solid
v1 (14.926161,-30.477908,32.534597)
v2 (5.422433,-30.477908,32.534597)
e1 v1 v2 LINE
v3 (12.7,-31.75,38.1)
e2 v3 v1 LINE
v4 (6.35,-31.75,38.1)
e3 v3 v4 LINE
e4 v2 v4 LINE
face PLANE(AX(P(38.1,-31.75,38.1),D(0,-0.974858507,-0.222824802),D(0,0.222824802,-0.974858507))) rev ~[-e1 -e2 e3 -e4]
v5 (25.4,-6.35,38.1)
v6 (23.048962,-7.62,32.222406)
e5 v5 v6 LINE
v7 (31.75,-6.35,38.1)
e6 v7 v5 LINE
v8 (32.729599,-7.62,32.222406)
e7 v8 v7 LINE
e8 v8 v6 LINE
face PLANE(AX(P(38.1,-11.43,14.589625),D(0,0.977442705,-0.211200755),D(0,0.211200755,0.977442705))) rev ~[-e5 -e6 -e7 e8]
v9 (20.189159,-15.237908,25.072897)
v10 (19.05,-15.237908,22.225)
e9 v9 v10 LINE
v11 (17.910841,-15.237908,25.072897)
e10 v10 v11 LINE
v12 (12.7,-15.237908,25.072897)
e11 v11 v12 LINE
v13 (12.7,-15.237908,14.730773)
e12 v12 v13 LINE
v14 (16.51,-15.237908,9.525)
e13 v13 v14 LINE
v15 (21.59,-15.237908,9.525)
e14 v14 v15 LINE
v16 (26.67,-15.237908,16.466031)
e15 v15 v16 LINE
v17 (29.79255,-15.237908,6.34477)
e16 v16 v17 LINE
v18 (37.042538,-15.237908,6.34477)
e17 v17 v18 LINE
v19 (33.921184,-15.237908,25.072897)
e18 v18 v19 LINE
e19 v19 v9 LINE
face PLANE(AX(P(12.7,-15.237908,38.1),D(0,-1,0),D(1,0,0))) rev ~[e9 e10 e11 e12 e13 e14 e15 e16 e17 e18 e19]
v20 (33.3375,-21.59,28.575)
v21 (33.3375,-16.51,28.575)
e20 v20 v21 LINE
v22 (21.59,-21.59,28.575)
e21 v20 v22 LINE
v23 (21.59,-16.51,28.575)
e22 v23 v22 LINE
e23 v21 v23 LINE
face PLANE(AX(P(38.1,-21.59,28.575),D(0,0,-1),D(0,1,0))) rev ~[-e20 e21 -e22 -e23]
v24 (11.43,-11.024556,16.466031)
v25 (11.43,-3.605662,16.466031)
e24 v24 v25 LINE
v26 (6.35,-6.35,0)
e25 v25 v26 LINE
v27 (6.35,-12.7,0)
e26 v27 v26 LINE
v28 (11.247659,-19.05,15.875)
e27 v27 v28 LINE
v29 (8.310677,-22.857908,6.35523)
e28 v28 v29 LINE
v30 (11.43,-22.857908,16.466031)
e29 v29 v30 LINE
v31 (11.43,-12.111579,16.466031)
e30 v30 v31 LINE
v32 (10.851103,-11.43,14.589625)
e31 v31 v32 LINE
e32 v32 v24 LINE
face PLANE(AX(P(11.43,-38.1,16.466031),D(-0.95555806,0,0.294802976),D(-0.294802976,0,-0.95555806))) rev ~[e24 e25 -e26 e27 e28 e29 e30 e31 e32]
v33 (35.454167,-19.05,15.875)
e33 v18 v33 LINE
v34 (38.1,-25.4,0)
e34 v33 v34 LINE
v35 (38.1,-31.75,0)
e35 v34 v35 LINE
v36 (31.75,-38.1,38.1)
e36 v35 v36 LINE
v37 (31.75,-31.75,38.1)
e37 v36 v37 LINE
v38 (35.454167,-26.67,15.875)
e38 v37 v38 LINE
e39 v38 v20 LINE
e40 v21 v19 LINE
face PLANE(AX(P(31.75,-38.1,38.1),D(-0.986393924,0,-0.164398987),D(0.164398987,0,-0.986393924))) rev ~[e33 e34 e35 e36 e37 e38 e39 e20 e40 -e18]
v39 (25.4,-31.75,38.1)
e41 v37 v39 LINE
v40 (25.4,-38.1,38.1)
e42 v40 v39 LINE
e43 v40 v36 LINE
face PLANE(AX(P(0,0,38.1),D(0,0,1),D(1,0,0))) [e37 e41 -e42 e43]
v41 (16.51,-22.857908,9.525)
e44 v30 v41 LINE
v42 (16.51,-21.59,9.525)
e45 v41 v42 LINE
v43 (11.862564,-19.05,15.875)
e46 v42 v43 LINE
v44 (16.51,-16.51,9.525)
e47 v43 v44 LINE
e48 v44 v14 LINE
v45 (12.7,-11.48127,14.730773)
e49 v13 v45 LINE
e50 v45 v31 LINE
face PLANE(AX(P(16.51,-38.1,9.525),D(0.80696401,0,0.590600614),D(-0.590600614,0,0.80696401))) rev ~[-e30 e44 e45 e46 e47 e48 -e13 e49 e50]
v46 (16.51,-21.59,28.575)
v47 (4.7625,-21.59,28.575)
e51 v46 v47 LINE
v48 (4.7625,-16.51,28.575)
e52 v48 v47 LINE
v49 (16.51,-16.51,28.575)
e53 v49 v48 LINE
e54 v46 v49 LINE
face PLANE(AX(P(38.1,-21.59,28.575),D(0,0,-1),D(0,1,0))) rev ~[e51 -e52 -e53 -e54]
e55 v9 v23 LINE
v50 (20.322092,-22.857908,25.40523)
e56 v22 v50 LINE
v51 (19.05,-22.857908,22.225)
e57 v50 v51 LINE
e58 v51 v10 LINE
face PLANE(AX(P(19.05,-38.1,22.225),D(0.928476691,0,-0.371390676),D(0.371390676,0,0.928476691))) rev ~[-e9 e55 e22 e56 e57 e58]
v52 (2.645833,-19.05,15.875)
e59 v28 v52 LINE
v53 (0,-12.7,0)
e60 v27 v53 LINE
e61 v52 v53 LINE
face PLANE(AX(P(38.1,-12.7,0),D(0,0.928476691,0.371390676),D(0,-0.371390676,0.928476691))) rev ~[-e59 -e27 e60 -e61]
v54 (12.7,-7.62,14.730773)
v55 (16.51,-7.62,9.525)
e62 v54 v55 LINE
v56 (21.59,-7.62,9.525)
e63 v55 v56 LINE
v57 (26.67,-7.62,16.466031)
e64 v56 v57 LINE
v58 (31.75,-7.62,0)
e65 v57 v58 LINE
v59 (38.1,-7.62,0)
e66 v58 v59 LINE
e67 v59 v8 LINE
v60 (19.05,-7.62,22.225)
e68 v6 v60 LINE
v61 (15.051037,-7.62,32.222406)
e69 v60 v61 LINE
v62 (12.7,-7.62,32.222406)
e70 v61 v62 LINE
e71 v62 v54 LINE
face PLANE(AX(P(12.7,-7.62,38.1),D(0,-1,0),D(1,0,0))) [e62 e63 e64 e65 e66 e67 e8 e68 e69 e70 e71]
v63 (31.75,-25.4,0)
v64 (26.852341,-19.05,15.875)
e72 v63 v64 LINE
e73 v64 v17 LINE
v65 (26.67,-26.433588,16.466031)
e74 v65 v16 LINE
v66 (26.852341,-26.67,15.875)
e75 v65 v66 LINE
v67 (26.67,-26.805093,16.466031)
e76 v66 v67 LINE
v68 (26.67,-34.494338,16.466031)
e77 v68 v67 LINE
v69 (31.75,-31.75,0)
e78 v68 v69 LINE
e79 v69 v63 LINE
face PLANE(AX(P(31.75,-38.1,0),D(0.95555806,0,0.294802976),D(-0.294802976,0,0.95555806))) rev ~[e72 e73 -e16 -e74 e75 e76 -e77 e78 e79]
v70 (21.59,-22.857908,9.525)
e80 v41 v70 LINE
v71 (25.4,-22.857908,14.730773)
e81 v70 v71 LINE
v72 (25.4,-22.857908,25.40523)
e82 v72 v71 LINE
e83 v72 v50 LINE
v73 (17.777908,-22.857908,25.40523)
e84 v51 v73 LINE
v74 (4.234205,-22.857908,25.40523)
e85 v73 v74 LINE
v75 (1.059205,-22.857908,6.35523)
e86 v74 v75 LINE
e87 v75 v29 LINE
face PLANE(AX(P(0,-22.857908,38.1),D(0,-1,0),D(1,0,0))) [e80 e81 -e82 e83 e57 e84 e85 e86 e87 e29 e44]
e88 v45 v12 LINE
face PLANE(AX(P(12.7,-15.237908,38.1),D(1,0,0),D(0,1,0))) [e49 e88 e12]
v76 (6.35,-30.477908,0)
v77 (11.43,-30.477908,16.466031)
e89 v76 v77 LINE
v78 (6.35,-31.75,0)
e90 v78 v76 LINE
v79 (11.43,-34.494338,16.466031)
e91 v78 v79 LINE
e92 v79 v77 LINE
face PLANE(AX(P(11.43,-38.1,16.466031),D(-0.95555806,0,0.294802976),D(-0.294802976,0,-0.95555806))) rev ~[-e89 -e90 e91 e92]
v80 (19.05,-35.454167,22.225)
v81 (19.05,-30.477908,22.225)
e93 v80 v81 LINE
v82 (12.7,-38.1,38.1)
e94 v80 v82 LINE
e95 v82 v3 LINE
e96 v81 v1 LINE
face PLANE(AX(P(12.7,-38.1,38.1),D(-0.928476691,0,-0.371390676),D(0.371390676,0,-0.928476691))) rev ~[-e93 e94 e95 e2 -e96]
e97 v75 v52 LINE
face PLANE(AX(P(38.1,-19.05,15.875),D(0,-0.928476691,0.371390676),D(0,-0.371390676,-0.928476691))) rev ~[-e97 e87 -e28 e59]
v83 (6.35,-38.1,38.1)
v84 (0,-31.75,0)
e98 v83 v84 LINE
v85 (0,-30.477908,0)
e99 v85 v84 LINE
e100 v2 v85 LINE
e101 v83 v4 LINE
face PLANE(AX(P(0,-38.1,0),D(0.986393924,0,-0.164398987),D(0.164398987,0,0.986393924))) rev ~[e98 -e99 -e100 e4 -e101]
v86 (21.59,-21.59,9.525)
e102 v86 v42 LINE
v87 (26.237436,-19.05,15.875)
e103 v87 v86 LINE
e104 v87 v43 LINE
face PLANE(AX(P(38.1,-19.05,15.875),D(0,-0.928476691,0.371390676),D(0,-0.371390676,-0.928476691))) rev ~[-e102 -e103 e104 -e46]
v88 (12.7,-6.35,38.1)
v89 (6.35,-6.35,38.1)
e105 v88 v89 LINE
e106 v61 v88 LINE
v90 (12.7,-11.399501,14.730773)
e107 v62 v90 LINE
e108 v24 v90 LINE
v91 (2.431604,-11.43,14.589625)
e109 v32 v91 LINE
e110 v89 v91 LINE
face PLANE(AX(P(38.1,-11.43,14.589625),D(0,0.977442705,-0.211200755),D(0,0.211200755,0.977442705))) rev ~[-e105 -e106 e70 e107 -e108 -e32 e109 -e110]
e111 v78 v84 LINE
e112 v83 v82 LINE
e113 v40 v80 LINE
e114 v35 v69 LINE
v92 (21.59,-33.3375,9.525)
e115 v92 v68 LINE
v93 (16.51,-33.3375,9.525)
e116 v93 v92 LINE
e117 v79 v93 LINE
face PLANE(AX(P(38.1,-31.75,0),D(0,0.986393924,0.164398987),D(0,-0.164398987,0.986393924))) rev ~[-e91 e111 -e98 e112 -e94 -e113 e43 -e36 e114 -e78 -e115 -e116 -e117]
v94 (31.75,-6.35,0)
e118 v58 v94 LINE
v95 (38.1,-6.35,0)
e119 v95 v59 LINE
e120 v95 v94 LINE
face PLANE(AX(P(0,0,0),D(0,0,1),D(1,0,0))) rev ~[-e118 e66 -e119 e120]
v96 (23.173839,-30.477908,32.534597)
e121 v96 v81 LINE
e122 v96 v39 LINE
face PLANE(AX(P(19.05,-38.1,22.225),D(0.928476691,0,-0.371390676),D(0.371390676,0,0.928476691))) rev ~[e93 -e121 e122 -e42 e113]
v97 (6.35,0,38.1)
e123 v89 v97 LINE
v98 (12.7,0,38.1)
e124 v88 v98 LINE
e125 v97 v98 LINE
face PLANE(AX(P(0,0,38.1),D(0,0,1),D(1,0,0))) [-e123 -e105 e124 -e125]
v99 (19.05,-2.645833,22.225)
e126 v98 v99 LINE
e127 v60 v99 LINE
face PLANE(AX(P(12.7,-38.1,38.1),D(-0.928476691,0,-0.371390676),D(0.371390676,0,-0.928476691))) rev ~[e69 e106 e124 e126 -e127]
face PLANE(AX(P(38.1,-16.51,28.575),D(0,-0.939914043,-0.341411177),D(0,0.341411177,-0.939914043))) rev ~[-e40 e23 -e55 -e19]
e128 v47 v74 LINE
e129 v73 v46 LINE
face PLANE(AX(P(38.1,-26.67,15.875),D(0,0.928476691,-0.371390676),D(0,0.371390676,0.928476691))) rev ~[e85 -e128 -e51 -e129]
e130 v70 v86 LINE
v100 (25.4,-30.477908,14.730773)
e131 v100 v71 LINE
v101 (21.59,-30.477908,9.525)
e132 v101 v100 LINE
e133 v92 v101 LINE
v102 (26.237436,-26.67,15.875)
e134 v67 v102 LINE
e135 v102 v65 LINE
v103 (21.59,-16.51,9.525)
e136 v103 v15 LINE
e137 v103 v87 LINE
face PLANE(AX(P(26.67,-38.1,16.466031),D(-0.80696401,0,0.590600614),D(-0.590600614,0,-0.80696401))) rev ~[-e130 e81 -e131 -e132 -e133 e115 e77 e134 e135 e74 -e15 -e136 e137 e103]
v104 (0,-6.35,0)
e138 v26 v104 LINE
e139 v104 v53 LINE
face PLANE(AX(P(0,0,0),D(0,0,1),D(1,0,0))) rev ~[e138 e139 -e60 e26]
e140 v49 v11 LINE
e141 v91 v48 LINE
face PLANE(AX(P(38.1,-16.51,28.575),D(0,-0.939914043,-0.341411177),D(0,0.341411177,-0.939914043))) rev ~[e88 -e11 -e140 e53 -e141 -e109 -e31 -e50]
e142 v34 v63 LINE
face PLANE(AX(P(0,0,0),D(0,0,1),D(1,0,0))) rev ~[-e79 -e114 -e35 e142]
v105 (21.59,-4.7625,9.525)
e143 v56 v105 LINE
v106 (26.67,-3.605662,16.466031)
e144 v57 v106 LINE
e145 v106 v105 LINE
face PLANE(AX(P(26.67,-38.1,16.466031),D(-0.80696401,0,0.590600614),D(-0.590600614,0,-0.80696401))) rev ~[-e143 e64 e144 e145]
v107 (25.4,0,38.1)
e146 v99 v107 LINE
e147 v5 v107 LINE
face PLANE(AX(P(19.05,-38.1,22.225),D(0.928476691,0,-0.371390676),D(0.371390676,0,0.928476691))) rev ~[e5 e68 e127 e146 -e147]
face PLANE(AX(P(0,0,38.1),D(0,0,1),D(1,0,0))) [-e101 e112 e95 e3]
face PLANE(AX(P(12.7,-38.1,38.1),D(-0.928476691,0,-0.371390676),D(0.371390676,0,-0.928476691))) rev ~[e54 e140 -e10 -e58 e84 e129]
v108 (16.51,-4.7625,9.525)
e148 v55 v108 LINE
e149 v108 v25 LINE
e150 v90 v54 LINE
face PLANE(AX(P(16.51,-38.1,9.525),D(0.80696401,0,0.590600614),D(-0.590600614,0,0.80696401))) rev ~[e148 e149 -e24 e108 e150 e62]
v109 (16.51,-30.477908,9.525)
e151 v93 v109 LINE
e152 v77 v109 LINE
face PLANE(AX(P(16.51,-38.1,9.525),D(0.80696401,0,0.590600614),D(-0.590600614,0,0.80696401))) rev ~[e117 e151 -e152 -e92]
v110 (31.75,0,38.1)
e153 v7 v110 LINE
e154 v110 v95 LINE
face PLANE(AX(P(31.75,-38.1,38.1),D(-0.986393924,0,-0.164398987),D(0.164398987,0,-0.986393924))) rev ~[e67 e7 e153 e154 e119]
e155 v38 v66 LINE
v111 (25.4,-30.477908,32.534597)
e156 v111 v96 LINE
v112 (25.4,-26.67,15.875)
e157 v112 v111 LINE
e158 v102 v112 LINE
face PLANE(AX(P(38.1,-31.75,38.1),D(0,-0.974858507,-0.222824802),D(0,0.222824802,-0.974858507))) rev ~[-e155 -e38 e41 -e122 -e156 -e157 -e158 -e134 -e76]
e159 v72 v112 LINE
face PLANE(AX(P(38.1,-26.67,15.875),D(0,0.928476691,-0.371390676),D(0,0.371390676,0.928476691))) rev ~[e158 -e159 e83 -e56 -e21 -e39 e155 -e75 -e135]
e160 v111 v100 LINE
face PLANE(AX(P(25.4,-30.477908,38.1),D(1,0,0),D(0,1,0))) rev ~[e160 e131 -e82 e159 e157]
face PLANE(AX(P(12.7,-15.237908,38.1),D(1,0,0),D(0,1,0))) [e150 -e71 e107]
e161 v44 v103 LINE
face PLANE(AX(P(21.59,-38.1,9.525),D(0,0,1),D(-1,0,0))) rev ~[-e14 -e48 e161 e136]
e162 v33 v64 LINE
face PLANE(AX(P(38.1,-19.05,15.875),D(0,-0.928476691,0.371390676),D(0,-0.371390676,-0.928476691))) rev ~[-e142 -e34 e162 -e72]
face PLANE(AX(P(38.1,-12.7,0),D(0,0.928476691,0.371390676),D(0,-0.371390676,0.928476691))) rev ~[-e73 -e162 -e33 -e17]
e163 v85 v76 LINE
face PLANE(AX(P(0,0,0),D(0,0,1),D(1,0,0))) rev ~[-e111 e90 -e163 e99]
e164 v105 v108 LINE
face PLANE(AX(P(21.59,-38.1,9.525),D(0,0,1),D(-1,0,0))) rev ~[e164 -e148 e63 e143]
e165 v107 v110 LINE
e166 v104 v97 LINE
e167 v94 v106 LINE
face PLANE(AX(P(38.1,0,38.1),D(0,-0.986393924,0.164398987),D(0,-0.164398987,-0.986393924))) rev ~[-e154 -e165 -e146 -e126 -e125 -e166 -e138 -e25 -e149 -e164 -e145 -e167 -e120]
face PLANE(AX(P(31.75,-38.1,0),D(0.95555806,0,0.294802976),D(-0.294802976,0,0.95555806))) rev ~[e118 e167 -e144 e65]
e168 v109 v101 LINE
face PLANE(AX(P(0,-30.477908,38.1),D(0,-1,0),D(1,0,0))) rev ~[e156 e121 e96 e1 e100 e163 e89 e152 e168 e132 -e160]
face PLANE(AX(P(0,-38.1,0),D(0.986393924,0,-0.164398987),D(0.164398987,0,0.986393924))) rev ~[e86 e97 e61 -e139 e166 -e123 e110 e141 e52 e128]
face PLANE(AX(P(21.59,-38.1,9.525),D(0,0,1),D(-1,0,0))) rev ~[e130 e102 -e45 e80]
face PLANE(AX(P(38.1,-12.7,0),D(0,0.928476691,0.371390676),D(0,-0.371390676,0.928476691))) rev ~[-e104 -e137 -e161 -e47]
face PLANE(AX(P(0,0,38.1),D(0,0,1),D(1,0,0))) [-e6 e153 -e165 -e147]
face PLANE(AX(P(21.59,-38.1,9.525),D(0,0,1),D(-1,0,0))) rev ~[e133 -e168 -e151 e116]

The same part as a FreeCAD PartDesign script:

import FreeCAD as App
import Part
import Sketcher
Q = App.Units.Quantity

doc = App.newDocument("Part")
body = doc.addObject("PartDesign::Body", "Body")

# Sketch on XZ plane
sketch1 = body.newObject("Sketcher::SketchObject", "Sketch")
sketch1.AttachmentSupport = (doc.getObject("XZ_Plane"), [""])
sketch1.MapMode = "FlatFace"
sketch1.addGeometry([
    Part.LineSegment(App.Vector(0, 38, 0), App.Vector(0, 0, 0)),
    Part.LineSegment(App.Vector(0, 0, 0), App.Vector(38, 0, 0)),
    Part.LineSegment(App.Vector(38, 0, 0), App.Vector(38, 38, 0)),
    Part.LineSegment(App.Vector(38, 38, 0), App.Vector(0, 38, 0)),
], False)
sketch1.addConstraint([
    Sketcher.Constraint("Coincident", 0, 2, 1, 1),
    Sketcher.Constraint("Coincident", 1, 2, 2, 1),
    Sketcher.Constraint("Coincident", 2, 2, 3, 1),
    Sketcher.Constraint("Coincident", 3, 2, 0, 1),
    Sketcher.Constraint("Vertical", 0),
    Sketcher.Constraint("Horizontal", 1),
    Sketcher.Constraint("Vertical", 2),
    Sketcher.Constraint("Horizontal", 3),
    Sketcher.Constraint("Coincident", 0, 2, -1, 1),
    Sketcher.Constraint("Equal", 3, 0),
    Sketcher.Constraint("DistanceX", 1, 1, 1, 2, Q("1.5 in")),
])
pad1 = body.newObject("PartDesign::Pad", "Pad")
pad1.Profile = sketch1
pad1.Length = Q("1.5 in")

# Sketch on YZ plane
sketch2 = body.newObject("Sketcher::SketchObject", "Sketch001")
sketch2.AttachmentSupport = (doc.getObject("YZ_Plane"), [""])
sketch2.MapMode = "FlatFace"
sketch2.AttachmentOffset = App.Placement(App.Vector(0, 0, 1.5 * 25.4), App.Rotation())
sketch2.addGeometry([
    Part.LineSegment(App.Vector(-11, 15, 0), App.Vector(-6, 38, 0)),  # 0
    Part.LineSegment(App.Vector(-6, 38, 0), App.Vector(-32, 38, 0)),  # 1
    Part.LineSegment(App.Vector(-32, 38, 0), App.Vector(-27, 16, 0)),  # 2
    Part.LineSegment(App.Vector(-27, 16, 0), App.Vector(-22, 29, 0)),  # 3
    Part.LineSegment(App.Vector(-22, 29, 0), App.Vector(-17, 29, 0)),  # 4
    Part.LineSegment(App.Vector(-17, 29, 0), App.Vector(-11, 15, 0)),  # 5
    Part.LineSegment(App.Vector(-32, 0, 0), App.Vector(-38, 38, 0)),  # 6
    Part.LineSegment(App.Vector(-38, 38, 0), App.Vector(-38, 0, 0)),  # 7
    Part.LineSegment(App.Vector(-38, 0, 0), App.Vector(-32, 0, 0)),  # 8
    Part.LineSegment(App.Vector(-25, 0, 0), App.Vector(-13, 0, 0)),  # 9
    Part.LineSegment(App.Vector(-13, 0, 0), App.Vector(-19, 16, 0)),  # 10
    Part.LineSegment(App.Vector(-19, 16, 0), App.Vector(-25, 0, 0)),  # 11
    Part.LineSegment(App.Vector(-6, 0, 0), App.Vector(0, 0, 0)),  # 12
    Part.LineSegment(App.Vector(0, 0, 0), App.Vector(0, 38, 0)),  # 13
    Part.LineSegment(App.Vector(0, 38, 0), App.Vector(-6, 0, 0)),  # 14
], False)
sketch2.addConstraint([
    Sketcher.Constraint("Coincident", 0, 2, 1, 1),
    Sketcher.Constraint("Coincident", 1, 2, 2, 1),
    Sketcher.Constraint("Coincident", 2, 2, 3, 1),
    Sketcher.Constraint("Coincident", 3, 2, 4, 1),
    Sketcher.Constraint("Coincident", 4, 2, 5, 1),
    Sketcher.Constraint("Coincident", 5, 2, 0, 1),
    Sketcher.Constraint("Coincident", 6, 2, 7, 1),
    Sketcher.Constraint("Coincident", 7, 2, 8, 1),
    Sketcher.Constraint("Coincident", 8, 2, 6, 1),
    Sketcher.Constraint("Coincident", 9, 2, 10, 1),
    Sketcher.Constraint("Coincident", 10, 2, 11, 1),
    Sketcher.Constraint("Coincident", 11, 2, 9, 1),
    Sketcher.Constraint("Coincident", 12, 2, 13, 1),
    Sketcher.Constraint("Coincident", 13, 2, 14, 1),
    Sketcher.Constraint("Coincident", 14, 2, 12, 1),
    Sketcher.Constraint("Horizontal", 1),
    Sketcher.Constraint("Horizontal", 4),
    Sketcher.Constraint("Vertical", 7),
    Sketcher.Constraint("Horizontal", 8),
    Sketcher.Constraint("Horizontal", 9),
    Sketcher.Constraint("Horizontal", 12),
    Sketcher.Constraint("Vertical", 13),
    Sketcher.Constraint("Coincident", 12, 2, -1, 1),
    Sketcher.Constraint("PointOnObject", 7, 2, -1),
    Sketcher.Constraint("PointOnObject", 9, 2, -1),
    Sketcher.Constraint("Parallel", 3, 11),
    Sketcher.Constraint("Horizontal", 1, 2, 6, 2),
    Sketcher.Constraint("Horizontal", 2, 2, 10, 2),
    Sketcher.Constraint("Horizontal", 6, 2, 13, 2),
    Sketcher.Constraint("Vertical", 1, 2, 8, 2),
    Sketcher.Constraint("Vertical", 0, 2, 14, 2),
    Sketcher.Constraint("Equal", 8, 12),
    Sketcher.Constraint("Equal", 10, 11),
    Sketcher.Constraint("DistanceX", 1, 2, 1, 1, Q("1 in")),
    Sketcher.Constraint("DistanceX", 4, 1, 4, 2, Q("0.2 in")),
    Sketcher.Constraint("DistanceX", 9, 1, 9, 2, Q("0.5 in")),
    Sketcher.Constraint("DistanceY", 7, 2, 7, 1, Q("1.5 in")),
    Sketcher.Constraint("DistanceX", 11, 2, -1, 1, Q("1 in")),
    Sketcher.Constraint("DistanceX", 7, 2, 9, 2, Q("1 in")),
    Sketcher.Constraint("DistanceX", 1, 2, 2, 2, Q("0.2 in")),
    Sketcher.Constraint("DistanceX", 2, 2, 3, 2, Q("0.2 in")),
    Sketcher.Constraint("DistanceY", 2, 2, 3, 2, Q("0.5 in")),
    Sketcher.Constraint("DistanceX", 4, 2, 5, 2, Q("0.2 in")),
    Sketcher.Constraint("Distance", 5, Q("14.879419 mm")),
])
pocket1 = body.newObject("PartDesign::Pocket", "Pocket")
pocket1.Profile = sketch2
pocket1.Length = Q("1.5 in")

# Sketch on XZ plane
sketch3 = body.newObject("Sketcher::SketchObject", "Sketch002")
sketch3.AttachmentSupport = (doc.getObject("XZ_Plane"), [""])
sketch3.MapMode = "FlatFace"
sketch3.AttachmentOffset = App.Placement(App.Vector(0, 0, 1.5 * 25.4), App.Rotation())
sketch3.addGeometry([
    Part.LineSegment(App.Vector(0, 38, 0), App.Vector(0, 0, 0)),  # 0
    Part.LineSegment(App.Vector(0, 0, 0), App.Vector(6, 38, 0)),  # 1
    Part.LineSegment(App.Vector(6, 38, 0), App.Vector(0, 38, 0)),  # 2
    Part.LineSegment(App.Vector(25, 38, 0), App.Vector(13, 38, 0)),  # 3
    Part.LineSegment(App.Vector(13, 38, 0), App.Vector(19, 22, 0)),  # 4
    Part.LineSegment(App.Vector(19, 22, 0), App.Vector(25, 38, 0)),  # 5
    Part.LineSegment(App.Vector(11, 16, 0), App.Vector(6, 0, 0)),  # 6
    Part.LineSegment(App.Vector(6, 0, 0), App.Vector(32, 0, 0)),  # 7
    Part.LineSegment(App.Vector(32, 0, 0), App.Vector(27, 16, 0)),  # 8
    Part.LineSegment(App.Vector(27, 16, 0), App.Vector(22, 10, 0)),  # 9
    Part.LineSegment(App.Vector(22, 10, 0), App.Vector(17, 10, 0)),  # 10
    Part.LineSegment(App.Vector(17, 10, 0), App.Vector(11, 16, 0)),  # 11
    Part.LineSegment(App.Vector(32, 38, 0), App.Vector(38, 0, 0)),  # 12
    Part.LineSegment(App.Vector(38, 0, 0), App.Vector(38, 38, 0)),  # 13
    Part.LineSegment(App.Vector(38, 38, 0), App.Vector(32, 38, 0)),  # 14
], False)
sketch3.addConstraint([
    Sketcher.Constraint("Coincident", 0, 2, 1, 1),
    Sketcher.Constraint("Coincident", 1, 2, 2, 1),
    Sketcher.Constraint("Coincident", 2, 2, 0, 1),
    Sketcher.Constraint("Coincident", 3, 2, 4, 1),
    Sketcher.Constraint("Coincident", 4, 2, 5, 1),
    Sketcher.Constraint("Coincident", 5, 2, 3, 1),
    Sketcher.Constraint("Coincident", 6, 2, 7, 1),
    Sketcher.Constraint("Coincident", 7, 2, 8, 1),
    Sketcher.Constraint("Coincident", 8, 2, 9, 1),
    Sketcher.Constraint("Coincident", 9, 2, 10, 1),
    Sketcher.Constraint("Coincident", 10, 2, 11, 1),
    Sketcher.Constraint("Coincident", 11, 2, 6, 1),
    Sketcher.Constraint("Coincident", 12, 2, 13, 1),
    Sketcher.Constraint("Coincident", 13, 2, 14, 1),
    Sketcher.Constraint("Coincident", 14, 2, 12, 1),
    Sketcher.Constraint("Vertical", 0),
    Sketcher.Constraint("Horizontal", 2),
    Sketcher.Constraint("Horizontal", 3),
    Sketcher.Constraint("Horizontal", 7),
    Sketcher.Constraint("Horizontal", 10),
    Sketcher.Constraint("Vertical", 13),
    Sketcher.Constraint("Horizontal", 14),
    Sketcher.Constraint("Coincident", 0, 2, -1, 1),
    Sketcher.Constraint("PointOnObject", 6, 2, -1),
    Sketcher.Constraint("PointOnObject", 12, 2, -1),
    Sketcher.Constraint("Horizontal", 2, 2, 3, 2),
    Sketcher.Constraint("Horizontal", 8, 2, 11, 2),
    Sketcher.Constraint("Horizontal", 5, 2, 13, 2),
    Sketcher.Constraint("Vertical", 1, 2, 6, 2),
    Sketcher.Constraint("Vertical", 7, 2, 14, 2),
    Sketcher.Constraint("Equal", 2, 14),
    Sketcher.Constraint("Equal", 4, 5),
    Sketcher.Constraint("Equal", 6, 8),
    Sketcher.Constraint("Equal", 9, 11),
    Sketcher.Constraint("DistanceX", 7, 1, 7, 2, Q("1 in")),
    Sketcher.Constraint("DistanceX", 3, 2, 3, 1, Q("0.5 in")),
    Sketcher.Constraint("DistanceX", 10, 2, 10, 1, Q("0.2 in")),
    Sketcher.Constraint("DistanceY", 0, 2, 0, 1, Q("1.5 in")),
    Sketcher.Constraint("DistanceX", -1, 1, 5, 2, Q("1 in")),
    Sketcher.Constraint("DistanceX", 3, 2, 13, 2, Q("1 in")),
    Sketcher.Constraint("DistanceX", 4, 2, 8, 2, Q("0.3 in")),
    Sketcher.Constraint("DistanceY", 9, 2, 4, 2, Q("0.5 in")),
    Sketcher.Constraint("DistanceY", -1, 1, 4, 2, Q("0.875 in")),
    Sketcher.Constraint("DistanceY", -1, 1, 8, 2, Q("16.466031 mm")),
])
pocket2 = body.newObject("PartDesign::Pocket", "Pocket001")
pocket2.Profile = sketch3
pocket2.Length = Q("1.5 in")

# Sketch on XY plane
sketch4 = body.newObject("Sketcher::SketchObject", "Sketch003")
sketch4.AttachmentSupport = (doc.getObject("XY_Plane"), [""])
sketch4.MapMode = "FlatFace"
sketch4.AttachmentOffset = App.Placement(App.Vector(0, 0, 1.5 * 25.4), App.Rotation())
sketch4.addGeometry([
    Part.LineSegment(App.Vector(13, -8, 0), App.Vector(13, -15, 0)),  # 0
    Part.LineSegment(App.Vector(13, -15, 0), App.Vector(38, -15, 0)),  # 1
    Part.LineSegment(App.Vector(38, -15, 0), App.Vector(38, -8, 0)),  # 2
    Part.LineSegment(App.Vector(38, -8, 0), App.Vector(13, -8, 0)),  # 3
    Part.LineSegment(App.Vector(0, -23, 0), App.Vector(0, -30, 0)),  # 4
    Part.LineSegment(App.Vector(0, -30, 0), App.Vector(25, -30, 0)),  # 5
    Part.LineSegment(App.Vector(25, -30, 0), App.Vector(25, -23, 0)),  # 6
    Part.LineSegment(App.Vector(25, -23, 0), App.Vector(0, -23, 0)),  # 7
], False)
sketch4.addConstraint([
    Sketcher.Constraint("Coincident", 0, 2, 1, 1),
    Sketcher.Constraint("Coincident", 1, 2, 2, 1),
    Sketcher.Constraint("Coincident", 2, 2, 3, 1),
    Sketcher.Constraint("Coincident", 3, 2, 0, 1),
    Sketcher.Constraint("Coincident", 4, 2, 5, 1),
    Sketcher.Constraint("Coincident", 5, 2, 6, 1),
    Sketcher.Constraint("Coincident", 6, 2, 7, 1),
    Sketcher.Constraint("Coincident", 7, 2, 4, 1),
    Sketcher.Constraint("Vertical", 0),
    Sketcher.Constraint("Horizontal", 1),
    Sketcher.Constraint("Vertical", 2),
    Sketcher.Constraint("Horizontal", 3),
    Sketcher.Constraint("Vertical", 4),
    Sketcher.Constraint("Horizontal", 5),
    Sketcher.Constraint("Vertical", 6),
    Sketcher.Constraint("Horizontal", 7),
    Sketcher.Constraint("PointOnObject", 4, 2, -2),
    Sketcher.Constraint("Equal", 3, 5),
    Sketcher.Constraint("DistanceX", 1, 1, 1, 2, Q("1 in")),
    Sketcher.Constraint("DistanceY", 4, 2, 4, 1, Q("0.3 in")),
    Sketcher.Constraint("DistanceX", -1, 1, 0, 2, Q("0.5 in")),
    Sketcher.Constraint("DistanceY", 2, 2, -1, 1, Q("0.3 in")),
    Sketcher.Constraint("DistanceY", 4, 2, 0, 2, Q("0.6 in")),
    Sketcher.Constraint("DistanceY", 0, 2, 0, 1, Q("7.617908 mm")),
])
pocket3 = body.newObject("PartDesign::Pocket", "Pocket002")
pocket3.Profile = sketch4
pocket3.Length = Q("1.5 in")

doc.recompute()
